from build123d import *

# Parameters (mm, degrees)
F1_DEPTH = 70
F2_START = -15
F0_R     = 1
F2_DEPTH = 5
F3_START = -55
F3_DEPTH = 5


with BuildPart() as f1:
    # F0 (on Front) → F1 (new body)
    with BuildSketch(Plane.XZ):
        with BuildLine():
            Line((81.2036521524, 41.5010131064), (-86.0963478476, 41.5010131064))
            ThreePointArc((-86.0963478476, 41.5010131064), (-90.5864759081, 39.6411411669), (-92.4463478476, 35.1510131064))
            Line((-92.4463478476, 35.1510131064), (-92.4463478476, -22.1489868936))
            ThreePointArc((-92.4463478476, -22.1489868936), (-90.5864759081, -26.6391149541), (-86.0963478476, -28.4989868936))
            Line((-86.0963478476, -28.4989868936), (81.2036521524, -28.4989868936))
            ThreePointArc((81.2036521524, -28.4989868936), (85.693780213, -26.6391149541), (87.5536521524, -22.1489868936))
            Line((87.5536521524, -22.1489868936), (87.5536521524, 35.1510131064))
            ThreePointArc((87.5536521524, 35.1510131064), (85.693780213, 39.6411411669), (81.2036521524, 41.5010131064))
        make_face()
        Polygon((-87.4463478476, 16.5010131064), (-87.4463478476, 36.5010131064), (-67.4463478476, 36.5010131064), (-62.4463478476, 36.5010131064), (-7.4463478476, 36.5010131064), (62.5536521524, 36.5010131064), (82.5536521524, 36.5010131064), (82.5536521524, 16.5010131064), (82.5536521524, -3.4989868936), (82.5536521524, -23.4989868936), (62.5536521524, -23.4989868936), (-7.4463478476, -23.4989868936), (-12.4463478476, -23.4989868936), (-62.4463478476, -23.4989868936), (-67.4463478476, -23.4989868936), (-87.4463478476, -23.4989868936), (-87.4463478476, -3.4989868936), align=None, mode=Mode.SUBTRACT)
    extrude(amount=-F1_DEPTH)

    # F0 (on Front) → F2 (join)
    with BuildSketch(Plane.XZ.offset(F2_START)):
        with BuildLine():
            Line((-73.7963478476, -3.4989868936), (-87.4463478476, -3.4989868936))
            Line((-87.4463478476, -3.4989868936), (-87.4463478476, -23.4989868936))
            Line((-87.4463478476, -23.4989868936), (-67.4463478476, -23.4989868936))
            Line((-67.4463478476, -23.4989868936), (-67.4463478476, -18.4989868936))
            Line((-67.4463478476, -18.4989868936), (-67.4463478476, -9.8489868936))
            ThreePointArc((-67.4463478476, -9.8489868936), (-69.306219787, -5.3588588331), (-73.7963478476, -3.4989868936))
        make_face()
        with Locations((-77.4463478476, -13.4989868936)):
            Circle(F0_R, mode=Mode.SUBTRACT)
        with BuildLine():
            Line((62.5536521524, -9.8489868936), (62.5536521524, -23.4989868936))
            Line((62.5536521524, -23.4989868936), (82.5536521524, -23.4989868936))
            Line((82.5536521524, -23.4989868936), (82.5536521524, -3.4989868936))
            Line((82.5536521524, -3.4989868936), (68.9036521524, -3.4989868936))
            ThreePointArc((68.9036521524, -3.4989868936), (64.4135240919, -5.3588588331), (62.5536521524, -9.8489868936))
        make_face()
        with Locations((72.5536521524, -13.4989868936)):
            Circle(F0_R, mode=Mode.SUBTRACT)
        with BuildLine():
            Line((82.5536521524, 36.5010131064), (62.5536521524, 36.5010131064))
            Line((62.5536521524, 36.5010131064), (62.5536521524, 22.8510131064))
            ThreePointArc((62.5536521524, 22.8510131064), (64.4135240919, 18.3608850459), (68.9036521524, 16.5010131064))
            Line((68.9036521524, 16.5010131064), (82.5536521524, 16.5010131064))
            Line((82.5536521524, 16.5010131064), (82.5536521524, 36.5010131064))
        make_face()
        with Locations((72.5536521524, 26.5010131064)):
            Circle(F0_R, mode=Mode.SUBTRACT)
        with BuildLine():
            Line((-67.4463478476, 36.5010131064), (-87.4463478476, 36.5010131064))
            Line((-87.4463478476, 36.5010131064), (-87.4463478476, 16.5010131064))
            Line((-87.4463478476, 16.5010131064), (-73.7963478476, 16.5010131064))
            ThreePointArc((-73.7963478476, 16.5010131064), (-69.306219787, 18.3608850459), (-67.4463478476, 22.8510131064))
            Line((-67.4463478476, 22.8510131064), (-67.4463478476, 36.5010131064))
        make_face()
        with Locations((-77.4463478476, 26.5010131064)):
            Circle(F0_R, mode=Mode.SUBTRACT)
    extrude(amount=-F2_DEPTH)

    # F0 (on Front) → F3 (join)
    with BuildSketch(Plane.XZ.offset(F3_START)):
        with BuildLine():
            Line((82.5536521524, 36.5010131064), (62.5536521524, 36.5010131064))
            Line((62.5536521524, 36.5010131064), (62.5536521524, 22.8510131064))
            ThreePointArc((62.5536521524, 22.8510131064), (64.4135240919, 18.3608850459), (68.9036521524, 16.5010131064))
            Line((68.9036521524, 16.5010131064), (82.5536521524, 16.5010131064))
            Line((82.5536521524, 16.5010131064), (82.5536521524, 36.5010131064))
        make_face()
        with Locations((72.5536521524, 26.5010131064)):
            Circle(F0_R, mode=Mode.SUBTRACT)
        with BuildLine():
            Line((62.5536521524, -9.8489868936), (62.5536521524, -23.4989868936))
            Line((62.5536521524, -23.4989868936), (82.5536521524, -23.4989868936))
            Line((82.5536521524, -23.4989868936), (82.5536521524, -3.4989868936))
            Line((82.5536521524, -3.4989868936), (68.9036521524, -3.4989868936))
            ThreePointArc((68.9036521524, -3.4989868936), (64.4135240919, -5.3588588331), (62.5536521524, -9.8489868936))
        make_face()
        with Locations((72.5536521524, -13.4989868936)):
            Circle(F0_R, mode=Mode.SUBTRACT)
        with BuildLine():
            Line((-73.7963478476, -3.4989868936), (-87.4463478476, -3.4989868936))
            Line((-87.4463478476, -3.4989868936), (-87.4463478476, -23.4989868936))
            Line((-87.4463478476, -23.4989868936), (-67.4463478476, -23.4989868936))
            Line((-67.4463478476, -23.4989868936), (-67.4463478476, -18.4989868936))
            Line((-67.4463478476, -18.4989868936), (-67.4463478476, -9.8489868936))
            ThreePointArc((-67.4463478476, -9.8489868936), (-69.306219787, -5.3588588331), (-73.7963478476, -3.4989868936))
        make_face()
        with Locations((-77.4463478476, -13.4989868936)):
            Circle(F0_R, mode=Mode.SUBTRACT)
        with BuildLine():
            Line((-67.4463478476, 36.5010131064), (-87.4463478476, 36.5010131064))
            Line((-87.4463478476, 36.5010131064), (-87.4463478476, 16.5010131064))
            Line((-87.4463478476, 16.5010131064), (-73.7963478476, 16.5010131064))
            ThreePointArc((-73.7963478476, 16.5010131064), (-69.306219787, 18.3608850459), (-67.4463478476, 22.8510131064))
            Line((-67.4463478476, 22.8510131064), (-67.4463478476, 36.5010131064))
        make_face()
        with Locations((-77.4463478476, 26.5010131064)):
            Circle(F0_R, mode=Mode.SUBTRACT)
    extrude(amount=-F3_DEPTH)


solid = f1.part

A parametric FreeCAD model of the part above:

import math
import FreeCAD as App
import Part
import Sketcher


def add_polygon(sketch, points):
    """Adds a closed chain of lines whose ends are joined by coincident constraints."""
    first, n = sketch.GeometryCount, len(points)
    for a, b in zip(points, points[1:] + points[:1]):
        sketch.addGeometry(Part.LineSegment(App.Vector(*a, 0), App.Vector(*b, 0)), False)
    for i in range(n):
        sketch.addConstraint(Sketcher.Constraint("Coincident", first + i, 2, first + (i + 1) % n, 1))

doc = App.newDocument("Part")
body = doc.addObject("PartDesign::Body", "Body")

# Sketch on XZ plane
sketch1 = body.newObject("Sketcher::SketchObject", "Sketch")
sketch1.AttachmentSupport = (doc.getObject("XZ_Plane"), [""])
sketch1.MapMode = "FlatFace"
sketch1.addGeometry(Part.LineSegment(App.Vector(81, 42, 0), App.Vector(-86, 42, 0)), False)  # 0
sketch1.addGeometry(Part.ArcOfCircle(Part.Circle(App.Vector(-86, 35, 0), App.Vector(0, 0, 1), 6), math.radians(90), math.radians(180)), False)  # 1
sketch1.addGeometry(Part.LineSegment(App.Vector(-92, 35, 0), App.Vector(-92, -22, 0)), False)  # 2
sketch1.addGeometry(Part.ArcOfCircle(Part.Circle(App.Vector(-86, -22, 0), App.Vector(0, 0, 1), 6), math.radians(-180), math.radians(-90)), False)  # 3
sketch1.addGeometry(Part.LineSegment(App.Vector(-86, -28, 0), App.Vector(81, -28, 0)), False)  # 4
sketch1.addGeometry(Part.ArcOfCircle(Part.Circle(App.Vector(81, -22, 0), App.Vector(0, 0, 1), 6), math.radians(-90), math.radians(0)), False)  # 5
sketch1.addGeometry(Part.LineSegment(App.Vector(88, -22, 0), App.Vector(88, 35, 0)), False)  # 6
sketch1.addGeometry(Part.ArcOfCircle(Part.Circle(App.Vector(81, 35, 0), App.Vector(0, 0, 1), 6), math.radians(0), math.radians(90)), False)  # 7
add_polygon(sketch1, [(-87, -23), (-87, 37), (83, 37), (83, -23)])  # lines 8-11
sketch1.addConstraint(Sketcher.Constraint("Tangent", 0, 2, 1, 1))
sketch1.addConstraint(Sketcher.Constraint("Tangent", 1, 2, 2, 1))
sketch1.addConstraint(Sketcher.Constraint("Tangent", 2, 2, 3, 1))
sketch1.addConstraint(Sketcher.Constraint("Tangent", 3, 2, 4, 1))
sketch1.addConstraint(Sketcher.Constraint("Tangent", 4, 2, 5, 1))
sketch1.addConstraint(Sketcher.Constraint("Tangent", 5, 2, 6, 1))
sketch1.addConstraint(Sketcher.Constraint("Tangent", 6, 2, 7, 1))
sketch1.addConstraint(Sketcher.Constraint("Tangent", 7, 2, 0, 1))
sketch1.addConstraint(Sketcher.Constraint("Horizontal", 0))
sketch1.addConstraint(Sketcher.Constraint("Vertical", 2))
sketch1.addConstraint(Sketcher.Constraint("Horizontal", 4))
sketch1.addConstraint(Sketcher.Constraint("Vertical", 6))
sketch1.addConstraint(Sketcher.Constraint("Vertical", 8))
sketch1.addConstraint(Sketcher.Constraint("Horizontal", 9))
sketch1.addConstraint(Sketcher.Constraint("Vertical", 10))
sketch1.addConstraint(Sketcher.Constraint("Horizontal", 11))
sketch1.addConstraint(Sketcher.Constraint("Equal", 1, 3))
sketch1.addConstraint(Sketcher.Constraint("Equal", 3, 5))
sketch1.addConstraint(Sketcher.Constraint("Equal", 5, 7))
sketch1.addConstraint(Sketcher.Constraint("DistanceX", 9, 1, 9, 2, 170.0))
sketch1.addConstraint(Sketcher.Constraint("DistanceY", 8, 1, 8, 2, 60.0))
sketch1.addConstraint(Sketcher.Constraint("Radius", 1, 6.35))
sketch1.addConstraint(Sketcher.Constraint("DistanceX", 0, 2, 0, 1, 167.3))
sketch1.addConstraint(Sketcher.Constraint("DistanceY", 2, 2, 2, 1, 57.3))
sketch1.addConstraint(Sketcher.Constraint("DistanceX", 1, 2, 8, 2, 5.0))
sketch1.addConstraint(Sketcher.Constraint("DistanceY", 8, 2, 0, 2, 5.0))
sketch1.addConstraint(Sketcher.Constraint("DistanceX", 1, 3, -1, 1, 86.096348))
sketch1.addConstraint(Sketcher.Constraint("DistanceY", -1, 1, 1, 3, 35.151013))
pad1 = body.newObject("PartDesign::Pad", "Pad")
pad1.Profile = sketch1
pad1.Length = 70
pad1.Reversed = True

# Sketch on XZ plane
sketch2 = body.newObject("Sketcher::SketchObject", "Sketch001")
sketch2.AttachmentSupport = (doc.getObject("XZ_Plane"), [""])
sketch2.MapMode = "FlatFace"
sketch2.AttachmentOffset = App.Placement(App.Vector(0, 0, -15), App.Rotation())
sketch2.addGeometry(Part.LineSegment(App.Vector(-73.8, -3.5, 0), App.Vector(-87.4, -3.5, 0)), False)
sketch2.addGeometry(Part.LineSegment(App.Vector(-87.4, -3.5, 0), App.Vector(-87.4, -23.5, 0)), False)
sketch2.addGeometry(Part.LineSegment(App.Vector(-87.4, -23.5, 0), App.Vector(-67.4, -23.5, 0)), False)
sketch2.addGeometry(Part.LineSegment(App.Vector(-67.4, -23.5, 0), App.Vector(-67.4, -9.8, 0)), False)
sketch2.addGeometry(Part.ArcOfCircle(Part.Circle(App.Vector(-73.8, -9.8, 0), App.Vector(0, 0, 1), 6.3), math.radians(0), math.radians(90)), False)
sketch2.addGeometry(Part.Circle(App.Vector(-77.4, -13.5, 0), App.Vector(0, 0, 1), 1), False)
sketch2.addGeometry(Part.LineSegment(App.Vector(62.6, -9.8, 0), App.Vector(62.6, -23.5, 0)), False)
sketch2.addGeometry(Part.LineSegment(App.Vector(62.6, -23.5, 0), App.Vector(82.6, -23.5, 0)), False)
sketch2.addGeometry(Part.LineSegment(App.Vector(82.6, -23.5, 0), App.Vector(82.6, -3.5, 0)), False)
sketch2.addGeometry(Part.LineSegment(App.Vector(82.6, -3.5, 0), App.Vector(68.9, -3.5, 0)), False)
sketch2.addGeometry(Part.ArcOfCircle(Part.Circle(App.Vector(68.9, -9.8, 0), App.Vector(0, 0, 1), 6.3), math.radians(90), math.radians(180)), False)
sketch2.addGeometry(Part.Circle(App.Vector(72.6, -13.5, 0), App.Vector(0, 0, 1), 1), False)
sketch2.addGeometry(Part.LineSegment(App.Vector(82.6, 36.5, 0), App.Vector(62.6, 36.5, 0)), False)
sketch2.addGeometry(Part.LineSegment(App.Vector(62.6, 36.5, 0), App.Vector(62.6, 22.9, 0)), False)
sketch2.addGeometry(Part.ArcOfCircle(Part.Circle(App.Vector(68.9, 22.9, 0), App.Vector(0, 0, 1), 6.3), math.radians(-180), math.radians(-90)), False)
sketch2.addGeometry(Part.LineSegment(App.Vector(68.9, 16.5, 0), App.Vector(82.6, 16.5, 0)), False)
sketch2.addGeometry(Part.LineSegment(App.Vector(82.6, 16.5, 0), App.Vector(82.6, 36.5, 0)), False)
sketch2.addGeometry(Part.Circle(App.Vector(72.6, 26.5, 0), App.Vector(0, 0, 1), 1), False)
sketch2.addGeometry(Part.LineSegment(App.Vector(-67.4, 36.5, 0), App.Vector(-87.4, 36.5, 0)), False)
sketch2.addGeometry(Part.LineSegment(App.Vector(-87.4, 36.5, 0), App.Vector(-87.4, 16.5, 0)), False)
sketch2.addGeometry(Part.LineSegment(App.Vector(-87.4, 16.5, 0), App.Vector(-73.8, 16.5, 0)), False)
sketch2.addGeometry(Part.ArcOfCircle(Part.Circle(App.Vector(-73.8, 22.9, 0), App.Vector(0, 0, 1), 6.3), math.radians(-90), math.radians(0)), False)
sketch2.addGeometry(Part.LineSegment(App.Vector(-67.4, 22.9, 0), App.Vector(-67.4, 36.5, 0)), False)
sketch2.addGeometry(Part.Circle(App.Vector(-77.4, 26.5, 0), App.Vector(0, 0, 1), 1), False)
sketch2.addConstraint(Sketcher.Constraint("Coincident", 0, 2, 1, 1))
sketch2.addConstraint(Sketcher.Constraint("Coincident", 1, 2, 2, 1))
sketch2.addConstraint(Sketcher.Constraint("Coincident", 2, 2, 3, 1))
sketch2.addConstraint(Sketcher.Constraint("Tangent", 3, 2, 4, 1))
sketch2.addConstraint(Sketcher.Constraint("Tangent", 4, 2, 0, 1))
sketch2.addConstraint(Sketcher.Constraint("Coincident", 6, 2, 7, 1))
sketch2.addConstraint(Sketcher.Constraint("Coincident", 7, 2, 8, 1))
sketch2.addConstraint(Sketcher.Constraint("Coincident", 8, 2, 9, 1))
sketch2.addConstraint(Sketcher.Constraint("Tangent", 9, 2, 10, 1))
sketch2.addConstraint(Sketcher.Constraint("Tangent", 10, 2, 6, 1))
sketch2.addConstraint(Sketcher.Constraint("Coincident", 12, 2, 13, 1))
sketch2.addConstraint(Sketcher.Constraint("Tangent", 13, 2, 14, 1))
sketch2.addConstraint(Sketcher.Constraint("Tangent", 14, 2, 15, 1))
sketch2.addConstraint(Sketcher.Constraint("Coincident", 15, 2, 16, 1))
sketch2.addConstraint(Sketcher.Constraint("Coincident", 16, 2, 12, 1))
sketch2.addConstraint(Sketcher.Constraint("Coincident", 18, 2, 19, 1))
sketch2.addConstraint(Sketcher.Constraint("Coincident", 19, 2, 20, 1))
sketch2.addConstraint(Sketcher.Constraint("Tangent", 20, 2, 21, 1))
sketch2.addConstraint(Sketcher.Constraint("Tangent", 21, 2, 22, 1))
sketch2.addConstraint(Sketcher.Constraint("Coincident", 22, 2, 18, 1))
sketch2.addConstraint(Sketcher.Constraint("Horizontal", 0))
sketch2.addConstraint(Sketcher.Constraint("Vertical", 1))
sketch2.addConstraint(Sketcher.Constraint("Horizontal", 2))
sketch2.addConstraint(Sketcher.Constraint("Vertical", 3))
sketch2.addConstraint(Sketcher.Constraint("Vertical", 6))
sketch2.addConstraint(Sketcher.Constraint("Horizontal", 7))
sketch2.addConstraint(Sketcher.Constraint("Vertical", 8))
sketch2.addConstraint(Sketcher.Constraint("Horizontal", 9))
sketch2.addConstraint(Sketcher.Constraint("Horizontal", 12))
sketch2.addConstraint(Sketcher.Constraint("Vertical", 13))
sketch2.addConstraint(Sketcher.Constraint("Horizontal", 15))
sketch2.addConstraint(Sketcher.Constraint("Vertical", 16))
sketch2.addConstraint(Sketcher.Constraint("Horizontal", 18))
sketch2.addConstraint(Sketcher.Constraint("Vertical", 19))
sketch2.addConstraint(Sketcher.Constraint("Horizontal", 20))
sketch2.addConstraint(Sketcher.Constraint("Vertical", 22))
sketch2.addConstraint(Sketcher.Constraint("Equal", 4, 10))
sketch2.addConstraint(Sketcher.Constraint("Equal", 5, 11))
sketch2.addConstraint(Sketcher.Constraint("Equal", 10, 14))
sketch2.addConstraint(Sketcher.Constraint("Equal", 11, 17))
sketch2.addConstraint(Sketcher.Constraint("Equal", 14, 21))
sketch2.addConstraint(Sketcher.Constraint("Equal", 17, 23))
sketch2.addConstraint(Sketcher.Constraint("Horizontal", 4, 3, 10, 3))
sketch2.addConstraint(Sketcher.Constraint("Horizontal", 5, 3, 11, 3))
sketch2.addConstraint(Sketcher.Constraint("Horizontal", 14, 3, 21, 3))
sketch2.addConstraint(Sketcher.Constraint("Horizontal", 17, 3, 23, 3))
sketch2.addConstraint(Sketcher.Constraint("Horizontal", 2, 2, 6, 2))
sketch2.addConstraint(Sketcher.Constraint("Horizontal", 16, 2, 18, 2))
sketch2.addConstraint(Sketcher.Constraint("Vertical", 10, 3, 14, 3))
sketch2.addConstraint(Sketcher.Constraint("Vertical", 11, 3, 17, 3))
sketch2.addConstraint(Sketcher.Constraint("Vertical", 4, 3, 21, 3))
sketch2.addConstraint(Sketcher.Constraint("Vertical", 5, 3, 23, 3))
sketch2.addConstraint(Sketcher.Constraint("Vertical", 8, 2, 15, 2))
sketch2.addConstraint(Sketcher.Constraint("Vertical", 1, 2, 18, 2))
sketch2.addConstraint(Sketcher.Constraint("Equal", 2, 7))
sketch2.addConstraint(Sketcher.Constraint("Equal", 18, 1))
sketch2.addConstraint(Sketcher.Constraint("Equal", 6, 13))
sketch2.addConstraint(Sketcher.Constraint("Diameter", 5, 2.0))
sketch2.addConstraint(Sketcher.Constraint("DistanceX", 2, 1, 2, 2, 20.0))
sketch2.addConstraint(Sketcher.Constraint("Radius", 4, 6.35))
sketch2.addConstraint(Sketcher.Constraint("DistanceX", 5, 3, 11, 3, 150.0))
sketch2.addConstraint(Sketcher.Constraint("DistanceY", 11, 3, 17, 3, 40.0))
sketch2.addConstraint(Sketcher.Constraint("DistanceX", 0, 2, 5, 3, 10.0))
sketch2.addConstraint(Sketcher.Constraint("DistanceY", 5, 3, 0, 2, 10.0))
sketch2.addConstraint(Sketcher.Constraint("DistanceX", 6, 2, 11, 3, 10.0))
sketch2.addConstraint(Sketcher.Constraint("DistanceY", 17, 3, 12, 2, 10.0))
sketch2.addConstraint(Sketcher.Constraint("DistanceX", 4, 3, -1, 1, 73.796348))
sketch2.addConstraint(Sketcher.Constraint("DistanceY", 4, 3, -1, 1, 9.848987))
pad2 = body.newObject("PartDesign::Pad", "Pad001")
pad2.Profile = sketch2
pad2.Length = 5
pad2.Reversed = True

# Sketch on XZ plane
sketch3 = body.newObject("Sketcher::SketchObject", "Sketch002")
sketch3.AttachmentSupport = (doc.getObject("XZ_Plane"), [""])
sketch3.MapMode = "FlatFace"
sketch3.AttachmentOffset = App.Placement(App.Vector(0, 0, -55), App.Rotation())
sketch3.addGeometry(Part.LineSegment(App.Vector(82.6, 36.5, 0), App.Vector(62.6, 36.5, 0)), False)
sketch3.addGeometry(Part.LineSegment(App.Vector(62.6, 36.5, 0), App.Vector(62.6, 22.9, 0)), False)
sketch3.addGeometry(Part.ArcOfCircle(Part.Circle(App.Vector(68.9, 22.9, 0), App.Vector(0, 0, 1), 6.3), math.radians(-180), math.radians(-90)), False)
sketch3.addGeometry(Part.LineSegment(App.Vector(68.9, 16.5, 0), App.Vector(82.6, 16.5, 0)), False)
sketch3.addGeometry(Part.LineSegment(App.Vector(82.6, 16.5, 0), App.Vector(82.6, 36.5, 0)), False)
sketch3.addGeometry(Part.Circle(App.Vector(72.6, 26.5, 0), App.Vector(0, 0, 1), 1), False)
sketch3.addGeometry(Part.LineSegment(App.Vector(62.6, -9.8, 0), App.Vector(62.6, -23.5, 0)), False)
sketch3.addGeometry(Part.LineSegment(App.Vector(62.6, -23.5, 0), App.Vector(82.6, -23.5, 0)), False)
sketch3.addGeometry(Part.LineSegment(App.Vector(82.6, -23.5, 0), App.Vector(82.6, -3.5, 0)), False)
sketch3.addGeometry(Part.LineSegment(App.Vector(82.6, -3.5, 0), App.Vector(68.9, -3.5, 0)), False)
sketch3.addGeometry(Part.ArcOfCircle(Part.Circle(App.Vector(68.9, -9.8, 0), App.Vector(0, 0, 1), 6.3), math.radians(90), math.radians(180)), False)
sketch3.addGeometry(Part.Circle(App.Vector(72.6, -13.5, 0), App.Vector(0, 0, 1), 1), False)
sketch3.addGeometry(Part.LineSegment(App.Vector(-73.8, -3.5, 0), App.Vector(-87.4, -3.5, 0)), False)
sketch3.addGeometry(Part.LineSegment(App.Vector(-87.4, -3.5, 0), App.Vector(-87.4, -23.5, 0)), False)
sketch3.addGeometry(Part.LineSegment(App.Vector(-87.4, -23.5, 0), App.Vector(-67.4, -23.5, 0)), False)
sketch3.addGeometry(Part.LineSegment(App.Vector(-67.4, -23.5, 0), App.Vector(-67.4, -9.8, 0)), False)
sketch3.addGeometry(Part.ArcOfCircle(Part.Circle(App.Vector(-73.8, -9.8, 0), App.Vector(0, 0, 1), 6.3), math.radians(0), math.radians(90)), False)
sketch3.addGeometry(Part.Circle(App.Vector(-77.4, -13.5, 0), App.Vector(0, 0, 1), 1), False)
sketch3.addGeometry(Part.LineSegment(App.Vector(-67.4, 36.5, 0), App.Vector(-87.4, 36.5, 0)), False)
sketch3.addGeometry(Part.LineSegment(App.Vector(-87.4, 36.5, 0), App.Vector(-87.4, 16.5, 0)), False)
sketch3.addGeometry(Part.LineSegment(App.Vector(-87.4, 16.5, 0), App.Vector(-73.8, 16.5, 0)), False)
sketch3.addGeometry(Part.ArcOfCircle(Part.Circle(App.Vector(-73.8, 22.9, 0), App.Vector(0, 0, 1), 6.3), math.radians(-90), math.radians(0)), False)
sketch3.addGeometry(Part.LineSegment(App.Vector(-67.4, 22.9, 0), App.Vector(-67.4, 36.5, 0)), False)
sketch3.addGeometry(Part.Circle(App.Vector(-77.4, 26.5, 0), App.Vector(0, 0, 1), 1), False)
sketch3.addConstraint(Sketcher.Constraint("Coincident", 0, 2, 1, 1))
sketch3.addConstraint(Sketcher.Constraint("Tangent", 1, 2, 2, 1))
sketch3.addConstraint(Sketcher.Constraint("Tangent", 2, 2, 3, 1))
sketch3.addConstraint(Sketcher.Constraint("Coincident", 3, 2, 4, 1))
sketch3.addConstraint(Sketcher.Constraint("Coincident", 4, 2, 0, 1))
sketch3.addConstraint(Sketcher.Constraint("Coincident", 6, 2, 7, 1))
sketch3.addConstraint(Sketcher.Constraint("Coincident", 7, 2, 8, 1))
sketch3.addConstraint(Sketcher.Constraint("Coincident", 8, 2, 9, 1))
sketch3.addConstraint(Sketcher.Constraint("Tangent", 9, 2, 10, 1))
sketch3.addConstraint(Sketcher.Constraint("Tangent", 10, 2, 6, 1))
sketch3.addConstraint(Sketcher.Constraint("Coincident", 12, 2, 13, 1))
sketch3.addConstraint(Sketcher.Constraint("Coincident", 13, 2, 14, 1))
sketch3.addConstraint(Sketcher.Constraint("Coincident", 14, 2, 15, 1))
sketch3.addConstraint(Sketcher.Constraint("Tangent", 15, 2, 16, 1))
sketch3.addConstraint(Sketcher.Constraint("Tangent", 16, 2, 12, 1))
sketch3.addConstraint(Sketcher.Constraint("Coincident", 18, 2, 19, 1))
sketch3.addConstraint(Sketcher.Constraint("Coincident", 19, 2, 20, 1))
sketch3.addConstraint(Sketcher.Constraint("Tangent", 20, 2, 21, 1))
sketch3.addConstraint(Sketcher.Constraint("Tangent", 21, 2, 22, 1))
sketch3.addConstraint(Sketcher.Constraint("Coincident", 22, 2, 18, 1))
sketch3.addConstraint(Sketcher.Constraint("Horizontal", 0))
sketch3.addConstraint(Sketcher.Constraint("Vertical", 1))
sketch3.addConstraint(Sketcher.Constraint("Horizontal", 3))
sketch3.addConstraint(Sketcher.Constraint("Vertical", 4))
sketch3.addConstraint(Sketcher.Constraint("Vertical", 6))
sketch3.addConstraint(Sketcher.Constraint("Horizontal", 7))
sketch3.addConstraint(Sketcher.Constraint("Vertical", 8))
sketch3.addConstraint(Sketcher.Constraint("Horizontal", 9))
sketch3.addConstraint(Sketcher.Constraint("Horizontal", 12))
sketch3.addConstraint(Sketcher.Constraint("Vertical", 13))
sketch3.addConstraint(Sketcher.Constraint("Horizontal", 14))
sketch3.addConstraint(Sketcher.Constraint("Vertical", 15))
sketch3.addConstraint(Sketcher.Constraint("Horizontal", 18))
sketch3.addConstraint(Sketcher.Constraint("Vertical", 19))
sketch3.addConstraint(Sketcher.Constraint("Horizontal", 20))
sketch3.addConstraint(Sketcher.Constraint("Vertical", 22))
sketch3.addConstraint(Sketcher.Constraint("Equal", 2, 10))
sketch3.addConstraint(Sketcher.Constraint("Equal", 5, 11))
sketch3.addConstraint(Sketcher.Constraint("Equal", 10, 16))
sketch3.addConstraint(Sketcher.Constraint("Equal", 11, 17))
sketch3.addConstraint(Sketcher.Constraint("Equal", 16, 21))
sketch3.addConstraint(Sketcher.Constraint("Equal", 17, 23))
sketch3.addConstraint(Sketcher.Constraint("Horizontal", 10, 3, 16, 3))
sketch3.addConstraint(Sketcher.Constraint("Horizontal", 11, 3, 17, 3))
sketch3.addConstraint(Sketcher.Constraint("Horizontal", 2, 3, 21, 3))
sketch3.addConstraint(Sketcher.Constraint("Horizontal", 5, 3, 23, 3))
sketch3.addConstraint(Sketcher.Constraint("Horizontal", 7, 2, 13, 2))
sketch3.addConstraint(Sketcher.Constraint("Horizontal", 4, 2, 18, 2))
sketch3.addConstraint(Sketcher.Constraint("Vertical", 2, 3, 10, 3))
sketch3.addConstraint(Sketcher.Constraint("Vertical", 5, 3, 11, 3))
sketch3.addConstraint(Sketcher.Constraint("Vertical", 16, 3, 21, 3))
sketch3.addConstraint(Sketcher.Constraint("Vertical", 17, 3, 23, 3))
sketch3.addConstraint(Sketcher.Constraint("Vertical", 4, 2, 7, 2))
sketch3.addConstraint(Sketcher.Constraint("Vertical", 13, 2, 18, 2))
sketch3.addConstraint(Sketcher.Constraint("Equal", 9, 12))
sketch3.addConstraint(Sketcher.Constraint("Equal", 20, 1))
sketch3.addConstraint(Sketcher.Constraint("Equal", 1, 6))
sketch3.addConstraint(Sketcher.Constraint("Diameter", 5, 2.0))
sketch3.addConstraint(Sketcher.Constraint("DistanceX", 0, 2, 0, 1, 20.0))
sketch3.addConstraint(Sketcher.Constraint("Radius", 2, 6.35))
sketch3.addConstraint(Sketcher.Constraint("DistanceY", 11, 3, 5, 3, 40.0))
sketch3.addConstraint(Sketcher.Constraint("DistanceX", 17, 3, 11, 3, 150.0))
sketch3.addConstraint(Sketcher.Constraint("DistanceX", 0, 2, 5, 3, 10.0))
sketch3.addConstraint(Sketcher.Constraint("DistanceY", 5, 3, 0, 2, 10.0))
sketch3.addConstraint(Sketcher.Constraint("DistanceY", 6, 2, 11, 3, 10.0))
sketch3.addConstraint(Sketcher.Constraint("DistanceX", 12, 2, 17, 3, 10.0))
sketch3.addConstraint(Sketcher.Constraint("DistanceX", -1, 1, 2, 3, 68.903652))
sketch3.addConstraint(Sketcher.Constraint("DistanceY", -1, 1, 2, 3, 22.851013))
pad3 = body.newObject("PartDesign::Pad", "Pad002")
pad3.Profile = sketch3
pad3.Length = 5
pad3.Reversed = True

doc.recompute()
